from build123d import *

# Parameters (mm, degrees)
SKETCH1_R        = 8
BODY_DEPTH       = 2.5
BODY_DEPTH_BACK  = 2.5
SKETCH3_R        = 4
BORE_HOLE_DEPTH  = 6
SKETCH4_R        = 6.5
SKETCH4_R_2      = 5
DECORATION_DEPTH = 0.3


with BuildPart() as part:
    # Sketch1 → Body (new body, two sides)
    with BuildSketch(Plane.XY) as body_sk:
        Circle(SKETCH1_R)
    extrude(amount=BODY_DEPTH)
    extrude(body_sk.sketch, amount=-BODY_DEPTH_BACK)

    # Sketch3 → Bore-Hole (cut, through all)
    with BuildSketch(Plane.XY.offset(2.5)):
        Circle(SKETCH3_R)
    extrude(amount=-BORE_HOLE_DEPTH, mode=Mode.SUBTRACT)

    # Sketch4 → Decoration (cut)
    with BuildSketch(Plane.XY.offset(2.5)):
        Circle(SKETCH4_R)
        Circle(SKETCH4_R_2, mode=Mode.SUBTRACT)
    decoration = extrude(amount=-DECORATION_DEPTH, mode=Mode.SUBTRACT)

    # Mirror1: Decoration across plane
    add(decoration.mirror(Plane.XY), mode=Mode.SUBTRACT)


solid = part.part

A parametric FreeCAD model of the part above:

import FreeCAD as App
import Part
import Sketcher

doc = App.newDocument("Part")
params = doc.addObject("Spreadsheet::Sheet", "Params")
for row, (alias, value) in enumerate([
    ("sketch1_diameter", "16 mm"),
    ("pad1_length", "2.5 mm"),
    ("pad1_length2", "2.5 mm"),
    ("sketch2_diameter", "8 mm"),
    ("sketch3_diameter", "13 mm"),
    ("sketch3_diameter2", "10 mm"),
    ("pocket2_length", "0.3 mm"),
], start=1):
    params.set(f"A{row}", alias)
    params.set(f"B{row}", "=" + value)
    params.setAlias(f"B{row}", alias)

body = doc.addObject("PartDesign::Body", "Body")

sketch1 = doc.addObject("Sketcher::SketchObject", "Sketch")
body.addObject(sketch1)
sketch1.AttachmentSupport = (doc.XY_Plane, [""])
sketch1.MapMode = "FlatFace"
sketch1.addGeometry(Part.Circle(App.Vector(0, 0, 0), App.Vector(0, 0, 1), 8), False)
sketch1.addConstraint(Sketcher.Constraint("Coincident", 0, 3, -1, 1))
sketch1.addConstraint(Sketcher.Constraint("Diameter", 0, 16.0))
sketch1.setExpression("Constraints[1]", "Params.sketch1_diameter")
pad1 = doc.addObject("PartDesign::Pad", "Pad")
body.addObject(pad1)
pad1.Profile = sketch1
pad1.Type = "TwoLengths"
pad1.setExpression("Length", "Params.pad1_length")
pad1.setExpression("Length2", "Params.pad1_length2")

sketch2 = doc.addObject("Sketcher::SketchObject", "Sketch001")
body.addObject(sketch2)
sketch2.AttachmentSupport = (doc.XY_Plane, [""])
sketch2.MapMode = "FlatFace"
sketch2.AttachmentOffset = App.Placement(App.Vector(0, 0, 2.5), App.Rotation())
sketch2.addGeometry(Part.Circle(App.Vector(0, 0, 0), App.Vector(0, 0, 1), 4), False)
sketch2.addConstraint(Sketcher.Constraint("Coincident", 0, 3, -1, 1))
sketch2.addConstraint(Sketcher.Constraint("Diameter", 0, 8.0))
sketch2.setExpression("Constraints[1]", "Params.sketch2_diameter")
pocket1 = doc.addObject("PartDesign::Pocket", "Pocket")
body.addObject(pocket1)
pocket1.Profile = sketch2
pocket1.Type = "ThroughAll"

sketch3 = doc.addObject("Sketcher::SketchObject", "Sketch002")
body.addObject(sketch3)
sketch3.AttachmentSupport = (doc.XY_Plane, [""])
sketch3.MapMode = "FlatFace"
sketch3.AttachmentOffset = App.Placement(App.Vector(0, 0, 2.5), App.Rotation())
sketch3.addGeometry(Part.Circle(App.Vector(0, 0, 0), App.Vector(0, 0, 1), 6), False)
sketch3.addGeometry(Part.Circle(App.Vector(0, 0, 0), App.Vector(0, 0, 1), 5), False)
sketch3.addConstraint(Sketcher.Constraint("Coincident", 0, 3, -1, 1))
sketch3.addConstraint(Sketcher.Constraint("Coincident", 1, 3, -1, 1))
sketch3.addConstraint(Sketcher.Constraint("Diameter", 0, 13.0))
sketch3.addConstraint(Sketcher.Constraint("Diameter", 1, 10.0))
sketch3.setExpression("Constraints[2]", "Params.sketch3_diameter")
sketch3.setExpression("Constraints[3]", "Params.sketch3_diameter2")
pocket2 = doc.addObject("PartDesign::Pocket", "Pocket001")
body.addObject(pocket2)
pocket2.Profile = sketch3
pocket2.setExpression("Length", "Params.pocket2_length")
doc.recompute()

mirrored = doc.addObject("PartDesign::Mirrored", "Mirrored")
body.addObject(mirrored)
mirrored.Originals = [pocket2]
mirrored.MirrorPlane = (doc.XY_Plane, [""])
body.Tip = mirrored

doc.recompute()
